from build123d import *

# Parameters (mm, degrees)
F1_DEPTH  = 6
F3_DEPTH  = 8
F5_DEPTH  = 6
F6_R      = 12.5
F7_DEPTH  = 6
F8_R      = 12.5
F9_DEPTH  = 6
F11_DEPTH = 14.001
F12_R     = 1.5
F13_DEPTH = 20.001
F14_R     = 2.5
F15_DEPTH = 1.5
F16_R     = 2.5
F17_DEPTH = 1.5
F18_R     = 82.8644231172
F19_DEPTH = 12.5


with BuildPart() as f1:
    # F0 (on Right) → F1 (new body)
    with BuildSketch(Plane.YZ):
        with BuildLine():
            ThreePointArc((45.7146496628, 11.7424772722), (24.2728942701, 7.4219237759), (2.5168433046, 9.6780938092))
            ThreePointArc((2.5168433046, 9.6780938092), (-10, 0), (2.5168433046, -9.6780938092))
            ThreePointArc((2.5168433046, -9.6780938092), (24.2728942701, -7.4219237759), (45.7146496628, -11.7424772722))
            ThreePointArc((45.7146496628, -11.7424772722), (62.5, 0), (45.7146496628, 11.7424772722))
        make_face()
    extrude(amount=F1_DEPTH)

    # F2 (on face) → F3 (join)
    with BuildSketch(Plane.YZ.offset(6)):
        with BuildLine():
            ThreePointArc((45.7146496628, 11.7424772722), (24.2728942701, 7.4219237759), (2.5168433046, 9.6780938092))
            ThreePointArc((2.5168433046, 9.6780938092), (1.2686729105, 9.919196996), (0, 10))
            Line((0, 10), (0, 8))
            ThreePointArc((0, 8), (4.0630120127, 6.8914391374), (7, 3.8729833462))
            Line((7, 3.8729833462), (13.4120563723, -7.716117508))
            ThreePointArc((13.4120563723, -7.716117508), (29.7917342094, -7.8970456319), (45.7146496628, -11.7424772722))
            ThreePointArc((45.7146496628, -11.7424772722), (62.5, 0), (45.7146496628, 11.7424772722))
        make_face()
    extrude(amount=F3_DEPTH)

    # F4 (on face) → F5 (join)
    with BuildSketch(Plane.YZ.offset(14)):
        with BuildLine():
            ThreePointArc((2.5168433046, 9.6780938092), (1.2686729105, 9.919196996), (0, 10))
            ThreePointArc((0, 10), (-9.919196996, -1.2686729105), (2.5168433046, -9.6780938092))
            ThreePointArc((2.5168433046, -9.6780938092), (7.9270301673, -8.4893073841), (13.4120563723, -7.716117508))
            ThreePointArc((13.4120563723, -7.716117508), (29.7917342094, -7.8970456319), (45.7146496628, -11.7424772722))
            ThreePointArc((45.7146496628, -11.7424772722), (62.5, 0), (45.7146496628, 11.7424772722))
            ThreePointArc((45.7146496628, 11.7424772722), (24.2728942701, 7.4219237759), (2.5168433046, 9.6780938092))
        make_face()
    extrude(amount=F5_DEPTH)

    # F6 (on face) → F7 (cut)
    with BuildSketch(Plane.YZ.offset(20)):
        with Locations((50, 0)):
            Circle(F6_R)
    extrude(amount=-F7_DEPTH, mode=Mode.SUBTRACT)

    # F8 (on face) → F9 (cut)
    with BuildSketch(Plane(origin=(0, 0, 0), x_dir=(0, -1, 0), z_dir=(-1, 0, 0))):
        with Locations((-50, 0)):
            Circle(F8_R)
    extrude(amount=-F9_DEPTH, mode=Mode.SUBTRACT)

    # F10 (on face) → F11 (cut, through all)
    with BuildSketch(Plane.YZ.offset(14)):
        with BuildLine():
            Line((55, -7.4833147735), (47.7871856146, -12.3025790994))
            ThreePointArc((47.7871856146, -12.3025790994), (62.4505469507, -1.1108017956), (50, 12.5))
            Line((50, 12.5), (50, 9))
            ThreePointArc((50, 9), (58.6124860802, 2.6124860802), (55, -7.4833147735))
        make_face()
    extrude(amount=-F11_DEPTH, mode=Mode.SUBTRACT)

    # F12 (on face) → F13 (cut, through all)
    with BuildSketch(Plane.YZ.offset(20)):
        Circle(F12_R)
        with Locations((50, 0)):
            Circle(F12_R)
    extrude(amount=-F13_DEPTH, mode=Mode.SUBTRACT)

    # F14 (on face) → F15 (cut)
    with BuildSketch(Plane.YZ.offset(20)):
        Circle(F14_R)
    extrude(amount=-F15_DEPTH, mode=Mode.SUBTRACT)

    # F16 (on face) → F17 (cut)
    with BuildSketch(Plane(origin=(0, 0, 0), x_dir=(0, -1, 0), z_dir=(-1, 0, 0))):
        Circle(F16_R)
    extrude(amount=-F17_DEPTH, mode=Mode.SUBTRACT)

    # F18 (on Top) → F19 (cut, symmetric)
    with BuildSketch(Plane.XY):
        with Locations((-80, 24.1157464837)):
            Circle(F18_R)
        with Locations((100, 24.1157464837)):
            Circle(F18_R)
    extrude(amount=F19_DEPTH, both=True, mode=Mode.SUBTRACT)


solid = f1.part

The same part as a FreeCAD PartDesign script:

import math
import FreeCAD as App
import Part
import Sketcher
Q = App.Units.Quantity

doc = App.newDocument("Part")
params = doc.addObject("Spreadsheet::Sheet", "Params")
for row, (alias, value) in enumerate([
    ("sketch1_radius", "10 mm"),
    ("sketch1_radius2", "12.5 mm"),
    ("pad1_length", "6 mm"),
    ("sketch2_radius", "10 mm"),
    ("sketch2_radius2", "8 mm"),
    ("sketch2_radius3", "12.5 mm"),
    ("pad2_length", "8 mm"),
    ("sketch3_radius", "10 mm"),
    ("sketch3_radius2", "12.5 mm"),
    ("pad3_length", "6 mm"),
    ("sketch4_diameter", "25 mm"),
    ("pocket1_length", "6 mm"),
    ("sketch5_diameter", "25 mm"),
    ("pocket2_length", "6 mm"),
    ("sketch6_radius", "9 mm"),
    ("sketch6_radius2", "12.5 mm"),
    ("sketch7_diameter", "3 mm"),
    ("sketch8_diameter", "5 mm"),
    ("pocket5_length", "1.5 mm"),
    ("sketch9_diameter", "5 mm"),
    ("pocket6_length", "1.5 mm"),
    ("pocket7_length", "25 mm"),
], start=1):
    params.set(f"A{row}", alias)
    params.set(f"B{row}", "=" + value)
    params.setAlias(f"B{row}", alias)

body = doc.addObject("PartDesign::Body", "Body")

# Sketch on YZ plane
sketch1 = body.newObject("Sketcher::SketchObject", "Sketch")
sketch1.AttachmentSupport = (doc.getObject("YZ_Plane"), [""])
sketch1.MapMode = "FlatFace"
sketch1.addGeometry(Part.ArcOfCircle(Part.Circle(App.Vector(21, 80, 0), App.Vector(0, 0, 1), 73), math.radians(-105), math.radians(-70)), False)
sketch1.addGeometry(Part.ArcOfCircle(Part.Circle(App.Vector(0, 0, 0), App.Vector(0, 0, 1), 10), math.radians(75), math.radians(285)), False)
sketch1.addGeometry(Part.ArcOfCircle(Part.Circle(App.Vector(21, -80, 0), App.Vector(0, 0, 1), 73), math.radians(70), math.radians(105)), False)
sketch1.addGeometry(Part.ArcOfCircle(Part.Circle(App.Vector(50, 0, 0), App.Vector(0, 0, 1), 12), math.radians(-110), math.radians(110)), False)
sketch1.addConstraint(Sketcher.Constraint("Tangent", 0, 1, 1, 1))
sketch1.addConstraint(Sketcher.Constraint("Tangent", 1, 2, 2, 2))
sketch1.addConstraint(Sketcher.Constraint("Tangent", 2, 1, 3, 1))
sketch1.addConstraint(Sketcher.Constraint("Tangent", 3, 2, 0, 2))
sketch1.addConstraint(Sketcher.Constraint("Coincident", 1, 3, -1, 1))
sketch1.addConstraint(Sketcher.Constraint("Equal", 0, 2))
sketch1.addConstraint(Sketcher.Constraint("PointOnObject", 3, 3, -1))
sketch1.addConstraint(Sketcher.Constraint("Radius", 1, Q("10 mm")))
sketch1.addConstraint(Sketcher.Constraint("Radius", 3, Q("12.5 mm")))
sketch1.addConstraint(Sketcher.Constraint("DistanceY", -1, 1, 0, 3, Q("80 mm")))
sketch1.addConstraint(Sketcher.Constraint("DistanceX", -1, 1, 3, 3, Q("50 mm")))
sketch1.setExpression("Constraints[7]", "Params.sketch1_radius")
sketch1.setExpression("Constraints[8]", "Params.sketch1_radius2")
pad1 = body.newObject("PartDesign::Pad", "Pad")
pad1.Profile = sketch1
pad1.setExpression("Length", "Params.pad1_length")

# Sketch on YZ plane
sketch2 = body.newObject("Sketcher::SketchObject", "Sketch001")
sketch2.AttachmentSupport = (doc.getObject("YZ_Plane"), [""])
sketch2.MapMode = "FlatFace"
sketch2.AttachmentOffset = App.Placement(App.Vector(0, 0, 6), App.Rotation())
sketch2.addGeometry(Part.ArcOfCircle(Part.Circle(App.Vector(20.8, 80, 0), App.Vector(0, 0, 1), 72.7), math.radians(-105), math.radians(-70)), False)
sketch2.addGeometry(Part.ArcOfCircle(Part.Circle(App.Vector(0, 0, 0), App.Vector(0, 0, 1), 10), math.radians(75.42), math.radians(90)), False)
sketch2.addGeometry(Part.LineSegment(App.Vector(0, 10, 0), App.Vector(0, 8, 0)), False)
sketch2.addGeometry(Part.ArcOfCircle(Part.Circle(App.Vector(0, 0, 0), App.Vector(0, 0, 1), 8), math.radians(29), math.radians(90)), False)
sketch2.addGeometry(Part.LineSegment(App.Vector(7, 3.9, 0), App.Vector(13.4, -7.7, 0)), False)
sketch2.addGeometry(Part.ArcOfCircle(Part.Circle(App.Vector(20.8, -80, 0), App.Vector(0, 0, 1), 72.7), math.radians(70), math.radians(96)), False)
sketch2.addGeometry(Part.ArcOfCircle(Part.Circle(App.Vector(50, 0, 0), App.Vector(0, 0, 1), 12.5), math.radians(-110), math.radians(110)), False)
sketch2.addConstraint(Sketcher.Constraint("Tangent", 0, 1, 1, 1))
sketch2.addConstraint(Sketcher.Constraint("Coincident", 1, 2, 2, 1))
sketch2.addConstraint(Sketcher.Constraint("Coincident", 2, 2, 3, 2))
sketch2.addConstraint(Sketcher.Constraint("Tangent", 3, 1, 4, 1))
sketch2.addConstraint(Sketcher.Constraint("Coincident", 4, 2, 5, 2))
sketch2.addConstraint(Sketcher.Constraint("Tangent", 5, 1, 6, 1))
sketch2.addConstraint(Sketcher.Constraint("Tangent", 6, 2, 0, 2))
sketch2.addConstraint(Sketcher.Constraint("Vertical", 2))
sketch2.addConstraint(Sketcher.Constraint("Coincident", 1, 3, -1, 1))
sketch2.addConstraint(Sketcher.Constraint("Coincident", 3, 3, -1, 1))
sketch2.addConstraint(Sketcher.Constraint("Equal", 0, 5))
sketch2.addConstraint(Sketcher.Constraint("Symmetric", 0, 3, 5, 3, -1))
sketch2.addConstraint(Sketcher.Constraint("PointOnObject", 1, 2, -2))
sketch2.addConstraint(Sketcher.Constraint("Radius", 1, Q("10 mm")))
sketch2.addConstraint(Sketcher.Constraint("Radius", 3, Q("8 mm")))
sketch2.addConstraint(Sketcher.Constraint("Radius", 6, Q("12.5 mm")))
sketch2.addConstraint(Sketcher.Constraint("DistanceY", -1, 1, 0, 3, Q("80 mm")))
sketch2.addConstraint(Sketcher.Constraint("DistanceX", -1, 1, 6, 3, Q("50 mm")))
sketch2.addConstraint(Sketcher.Constraint("DistanceX", -1, 1, 3, 1, Q("7 mm")))
sketch2.setExpression("Constraints[13]", "Params.sketch2_radius")
sketch2.setExpression("Constraints[14]", "Params.sketch2_radius2")
sketch2.setExpression("Constraints[15]", "Params.sketch2_radius3")
pad2 = body.newObject("PartDesign::Pad", "Pad001")
pad2.Profile = sketch2
pad2.setExpression("Length", "Params.pad2_length")

# Sketch on YZ plane
sketch3 = body.newObject("Sketcher::SketchObject", "Sketch002")
sketch3.AttachmentSupport = (doc.getObject("YZ_Plane"), [""])
sketch3.MapMode = "FlatFace"
sketch3.AttachmentOffset = App.Placement(App.Vector(0, 0, 14), App.Rotation())
sketch3.addGeometry(Part.ArcOfCircle(Part.Circle(App.Vector(0, 0, 0), App.Vector(0, 0, 1), 10), math.radians(75.42), math.radians(90)), False)
sketch3.addGeometry(Part.ArcOfCircle(Part.Circle(App.Vector(0, 0, 0), App.Vector(0, 0, 1), 10), math.radians(90), math.radians(285)), False)
sketch3.addGeometry(Part.ArcOfCircle(Part.Circle(App.Vector(20.8, -80, 0), App.Vector(0, 0, 1), 72.7), math.radians(95.84), math.radians(104.58)), False)
sketch3.addGeometry(Part.ArcOfCircle(Part.Circle(App.Vector(20.8, -80, 0), App.Vector(0, 0, 1), 72.7), math.radians(70), math.radians(96)), False)
sketch3.addGeometry(Part.ArcOfCircle(Part.Circle(App.Vector(50, 0, 0), App.Vector(0, 0, 1), 12.5), math.radians(-110), math.radians(110)), False)
sketch3.addGeometry(Part.ArcOfCircle(Part.Circle(App.Vector(20.8, 80, 0), App.Vector(0, 0, 1), 72.7), math.radians(-105), math.radians(-70)), False)
sketch3.addConstraint(Sketcher.Constraint("Tangent", 0, 2, 1, 1))
sketch3.addConstraint(Sketcher.Constraint("Tangent", 1, 2, 2, 2))
sketch3.addConstraint(Sketcher.Constraint("Tangent", 2, 1, 3, 2))
sketch3.addConstraint(Sketcher.Constraint("Tangent", 3, 1, 4, 1))
sketch3.addConstraint(Sketcher.Constraint("Tangent", 4, 2, 5, 2))
sketch3.addConstraint(Sketcher.Constraint("Tangent", 5, 1, 0, 1))
sketch3.addConstraint(Sketcher.Constraint("Coincident", 0, 3, -1, 1))
sketch3.addConstraint(Sketcher.Constraint("Equal", 0, 1))
sketch3.addConstraint(Sketcher.Constraint("Equal", 2, 3))
sketch3.addConstraint(Sketcher.Constraint("Equal", 3, 5))
sketch3.addConstraint(Sketcher.Constraint("PointOnObject", 4, 3, -1))
sketch3.addConstraint(Sketcher.Constraint("PointOnObject", 0, 2, -2))
sketch3.addConstraint(Sketcher.Constraint("Radius", 0, Q("10 mm")))
sketch3.addConstraint(Sketcher.Constraint("Radius", 4, Q("12.5 mm")))
sketch3.addConstraint(Sketcher.Constraint("DistanceY", 2, 3, -1, 1, Q("80 mm")))
sketch3.addConstraint(Sketcher.Constraint("DistanceX", -1, 1, 4, 3, Q("50 mm")))
sketch3.addConstraint(Sketcher.Constraint("DistanceY", 3, 1, 2, 1, Q("4.02636 mm")))
sketch3.setExpression("Constraints[12]", "Params.sketch3_radius")
sketch3.setExpression("Constraints[13]", "Params.sketch3_radius2")
pad3 = body.newObject("PartDesign::Pad", "Pad002")
pad3.Profile = sketch3
pad3.setExpression("Length", "Params.pad3_length")

# Sketch on YZ plane
sketch4 = body.newObject("Sketcher::SketchObject", "Sketch003")
sketch4.AttachmentSupport = (doc.getObject("YZ_Plane"), [""])
sketch4.MapMode = "FlatFace"
sketch4.AttachmentOffset = App.Placement(App.Vector(0, 0, 20), App.Rotation())
sketch4.addGeometry(Part.Circle(App.Vector(50, 0, 0), App.Vector(0, 0, 1), 12), False)
sketch4.addConstraint(Sketcher.Constraint("PointOnObject", 0, 3, -1))
sketch4.addConstraint(Sketcher.Constraint("Diameter", 0, Q("25 mm")))
sketch4.addConstraint(Sketcher.Constraint("DistanceX", -1, 1, 0, 3, Q("50 mm")))
sketch4.setExpression("Constraints[1]", "Params.sketch4_diameter")
pocket1 = body.newObject("PartDesign::Pocket", "Pocket")
pocket1.Profile = sketch4
pocket1.setExpression("Length", "Params.pocket1_length")

# Sketch on YZ plane
sketch5 = body.newObject("Sketcher::SketchObject", "Sketch004")
sketch5.AttachmentSupport = (doc.getObject("YZ_Plane"), [""])
sketch5.MapMode = "FlatFace"
sketch5.addGeometry(Part.Circle(App.Vector(50, 0, 0), App.Vector(0, 0, 1), 12), False)
sketch5.addConstraint(Sketcher.Constraint("PointOnObject", 0, 3, -1))
sketch5.addConstraint(Sketcher.Constraint("Diameter", 0, Q("25 mm")))
sketch5.addConstraint(Sketcher.Constraint("DistanceX", -1, 1, 0, 3, Q("50 mm")))
sketch5.setExpression("Constraints[1]", "Params.sketch5_diameter")
pocket2 = body.newObject("PartDesign::Pocket", "Pocket001")
pocket2.Profile = sketch5
pocket2.setExpression("Length", "Params.pocket2_length")
pocket2.Reversed = True

# Sketch on YZ plane
sketch6 = body.newObject("Sketcher::SketchObject", "Sketch005")
sketch6.AttachmentSupport = (doc.getObject("YZ_Plane"), [""])
sketch6.MapMode = "FlatFace"
sketch6.AttachmentOffset = App.Placement(App.Vector(0, 0, 14), App.Rotation())
sketch6.addGeometry(Part.LineSegment(App.Vector(55, -7.5, 0), App.Vector(47.8, -12.3, 0)), False)
sketch6.addGeometry(Part.ArcOfCircle(Part.Circle(App.Vector(50, 0, 0), App.Vector(0, 0, 1), 12.5), math.radians(-100), math.radians(90)), False)
sketch6.addGeometry(Part.LineSegment(App.Vector(50, 12.5, 0), App.Vector(50, 9, 0)), False)
sketch6.addGeometry(Part.ArcOfCircle(Part.Circle(App.Vector(50, 0, 0), App.Vector(0, 0, 1), 9), math.radians(-56), math.radians(90)), False)
sketch6.addConstraint(Sketcher.Constraint("Coincident", 0, 2, 1, 1))
sketch6.addConstraint(Sketcher.Constraint("Coincident", 1, 2, 2, 1))
sketch6.addConstraint(Sketcher.Constraint("Coincident", 2, 2, 3, 2))
sketch6.addConstraint(Sketcher.Constraint("Tangent", 3, 1, 0, 1))
sketch6.addConstraint(Sketcher.Constraint("Vertical", 2))
sketch6.addConstraint(Sketcher.Constraint("Coincident", 3, 3, 1, 3))
sketch6.addConstraint(Sketcher.Constraint("PointOnObject", 1, 3, -1))
sketch6.addConstraint(Sketcher.Constraint("Vertical", 3, 3, 1, 2))
sketch6.addConstraint(Sketcher.Constraint("Radius", 3, Q("9 mm")))
sketch6.addConstraint(Sketcher.Constraint("Radius", 1, Q("12.5 mm")))
sketch6.addConstraint(Sketcher.Constraint("DistanceX", -1, 1, 1, 3, Q("50 mm")))
sketch6.addConstraint(Sketcher.Constraint("DistanceX", -1, 1, 3, 1, Q("55 mm")))
sketch6.setExpression("Constraints[8]", "Params.sketch6_radius")
sketch6.setExpression("Constraints[9]", "Params.sketch6_radius2")
pocket3 = body.newObject("PartDesign::Pocket", "Pocket002")
pocket3.Profile = sketch6
pocket3.Type = "ThroughAll"

# Sketch on YZ plane
sketch7 = body.newObject("Sketcher::SketchObject", "Sketch006")
sketch7.AttachmentSupport = (doc.getObject("YZ_Plane"), [""])
sketch7.MapMode = "FlatFace"
sketch7.AttachmentOffset = App.Placement(App.Vector(0, 0, 20), App.Rotation())
sketch7.addGeometry(Part.Circle(App.Vector(0, 0, 0), App.Vector(0, 0, 1), 1.5), False)
sketch7.addGeometry(Part.Circle(App.Vector(50, 0, 0), App.Vector(0, 0, 1), 1.5), False)
sketch7.addConstraint(Sketcher.Constraint("Coincident", 0, 3, -1, 1))
sketch7.addConstraint(Sketcher.Constraint("Equal", 0, 1))
sketch7.addConstraint(Sketcher.Constraint("PointOnObject", 1, 3, -1))
sketch7.addConstraint(Sketcher.Constraint("Diameter", 0, Q("3 mm")))
sketch7.addConstraint(Sketcher.Constraint("DistanceX", -1, 1, 1, 3, Q("50 mm")))
sketch7.setExpression("Constraints[3]", "Params.sketch7_diameter")
pocket4 = body.newObject("PartDesign::Pocket", "Pocket003")
pocket4.Profile = sketch7
pocket4.Type = "ThroughAll"

# Sketch on YZ plane
sketch8 = body.newObject("Sketcher::SketchObject", "Sketch007")
sketch8.AttachmentSupport = (doc.getObject("YZ_Plane"), [""])
sketch8.MapMode = "FlatFace"
sketch8.AttachmentOffset = App.Placement(App.Vector(0, 0, 20), App.Rotation())
sketch8.addGeometry(Part.Circle(App.Vector(0, 0, 0), App.Vector(0, 0, 1), 2.5), False)
sketch8.addConstraint(Sketcher.Constraint("Coincident", 0, 3, -1, 1))
sketch8.addConstraint(Sketcher.Constraint("Diameter", 0, Q("5 mm")))
sketch8.setExpression("Constraints[1]", "Params.sketch8_diameter")
pocket5 = body.newObject("PartDesign::Pocket", "Pocket004")
pocket5.Profile = sketch8
pocket5.setExpression("Length", "Params.pocket5_length")

# Sketch on YZ plane
sketch9 = body.newObject("Sketcher::SketchObject", "Sketch008")
sketch9.AttachmentSupport = (doc.getObject("YZ_Plane"), [""])
sketch9.MapMode = "FlatFace"
sketch9.addGeometry(Part.Circle(App.Vector(0, 0, 0), App.Vector(0, 0, 1), 2.5), False)
sketch9.addConstraint(Sketcher.Constraint("Coincident", 0, 3, -1, 1))
sketch9.addConstraint(Sketcher.Constraint("Diameter", 0, Q("5 mm")))
sketch9.setExpression("Constraints[1]", "Params.sketch9_diameter")
pocket6 = body.newObject("PartDesign::Pocket", "Pocket005")
pocket6.Profile = sketch9
pocket6.setExpression("Length", "Params.pocket6_length")
pocket6.Reversed = True

# Sketch on XY plane
sketch10 = body.newObject("Sketcher::SketchObject", "Sketch009")
sketch10.AttachmentSupport = (doc.getObject("XY_Plane"), [""])
sketch10.MapMode = "FlatFace"
sketch10.addGeometry(Part.Circle(App.Vector(-80, 24, 0), App.Vector(0, 0, 1), 83), False)
sketch10.addGeometry(Part.Circle(App.Vector(100, 24, 0), App.Vector(0, 0, 1), 83), False)
sketch10.addConstraint(Sketcher.Constraint("Equal", 0, 1))
sketch10.addConstraint(Sketcher.Constraint("Horizontal", 0, 3, 1, 3))
sketch10.addConstraint(Sketcher.Constraint("DistanceX", 0, 3, -1, 1, Q("80 mm")))
sketch10.addConstraint(Sketcher.Constraint("DistanceX", -1, 1, 1, 3, Q("100 mm")))
sketch10.addConstraint(Sketcher.Constraint("Diameter", 0, Q("165.728846 mm")))
sketch10.addConstraint(Sketcher.Constraint("DistanceY", -1, 1, 0, 3, Q("24.115746 mm")))
pocket7 = body.newObject("PartDesign::Pocket", "Pocket006")
pocket7.Profile = sketch10
pocket7.setExpression("Length", "Params.pocket7_length")
pocket7.Midplane = True

doc.recompute()
